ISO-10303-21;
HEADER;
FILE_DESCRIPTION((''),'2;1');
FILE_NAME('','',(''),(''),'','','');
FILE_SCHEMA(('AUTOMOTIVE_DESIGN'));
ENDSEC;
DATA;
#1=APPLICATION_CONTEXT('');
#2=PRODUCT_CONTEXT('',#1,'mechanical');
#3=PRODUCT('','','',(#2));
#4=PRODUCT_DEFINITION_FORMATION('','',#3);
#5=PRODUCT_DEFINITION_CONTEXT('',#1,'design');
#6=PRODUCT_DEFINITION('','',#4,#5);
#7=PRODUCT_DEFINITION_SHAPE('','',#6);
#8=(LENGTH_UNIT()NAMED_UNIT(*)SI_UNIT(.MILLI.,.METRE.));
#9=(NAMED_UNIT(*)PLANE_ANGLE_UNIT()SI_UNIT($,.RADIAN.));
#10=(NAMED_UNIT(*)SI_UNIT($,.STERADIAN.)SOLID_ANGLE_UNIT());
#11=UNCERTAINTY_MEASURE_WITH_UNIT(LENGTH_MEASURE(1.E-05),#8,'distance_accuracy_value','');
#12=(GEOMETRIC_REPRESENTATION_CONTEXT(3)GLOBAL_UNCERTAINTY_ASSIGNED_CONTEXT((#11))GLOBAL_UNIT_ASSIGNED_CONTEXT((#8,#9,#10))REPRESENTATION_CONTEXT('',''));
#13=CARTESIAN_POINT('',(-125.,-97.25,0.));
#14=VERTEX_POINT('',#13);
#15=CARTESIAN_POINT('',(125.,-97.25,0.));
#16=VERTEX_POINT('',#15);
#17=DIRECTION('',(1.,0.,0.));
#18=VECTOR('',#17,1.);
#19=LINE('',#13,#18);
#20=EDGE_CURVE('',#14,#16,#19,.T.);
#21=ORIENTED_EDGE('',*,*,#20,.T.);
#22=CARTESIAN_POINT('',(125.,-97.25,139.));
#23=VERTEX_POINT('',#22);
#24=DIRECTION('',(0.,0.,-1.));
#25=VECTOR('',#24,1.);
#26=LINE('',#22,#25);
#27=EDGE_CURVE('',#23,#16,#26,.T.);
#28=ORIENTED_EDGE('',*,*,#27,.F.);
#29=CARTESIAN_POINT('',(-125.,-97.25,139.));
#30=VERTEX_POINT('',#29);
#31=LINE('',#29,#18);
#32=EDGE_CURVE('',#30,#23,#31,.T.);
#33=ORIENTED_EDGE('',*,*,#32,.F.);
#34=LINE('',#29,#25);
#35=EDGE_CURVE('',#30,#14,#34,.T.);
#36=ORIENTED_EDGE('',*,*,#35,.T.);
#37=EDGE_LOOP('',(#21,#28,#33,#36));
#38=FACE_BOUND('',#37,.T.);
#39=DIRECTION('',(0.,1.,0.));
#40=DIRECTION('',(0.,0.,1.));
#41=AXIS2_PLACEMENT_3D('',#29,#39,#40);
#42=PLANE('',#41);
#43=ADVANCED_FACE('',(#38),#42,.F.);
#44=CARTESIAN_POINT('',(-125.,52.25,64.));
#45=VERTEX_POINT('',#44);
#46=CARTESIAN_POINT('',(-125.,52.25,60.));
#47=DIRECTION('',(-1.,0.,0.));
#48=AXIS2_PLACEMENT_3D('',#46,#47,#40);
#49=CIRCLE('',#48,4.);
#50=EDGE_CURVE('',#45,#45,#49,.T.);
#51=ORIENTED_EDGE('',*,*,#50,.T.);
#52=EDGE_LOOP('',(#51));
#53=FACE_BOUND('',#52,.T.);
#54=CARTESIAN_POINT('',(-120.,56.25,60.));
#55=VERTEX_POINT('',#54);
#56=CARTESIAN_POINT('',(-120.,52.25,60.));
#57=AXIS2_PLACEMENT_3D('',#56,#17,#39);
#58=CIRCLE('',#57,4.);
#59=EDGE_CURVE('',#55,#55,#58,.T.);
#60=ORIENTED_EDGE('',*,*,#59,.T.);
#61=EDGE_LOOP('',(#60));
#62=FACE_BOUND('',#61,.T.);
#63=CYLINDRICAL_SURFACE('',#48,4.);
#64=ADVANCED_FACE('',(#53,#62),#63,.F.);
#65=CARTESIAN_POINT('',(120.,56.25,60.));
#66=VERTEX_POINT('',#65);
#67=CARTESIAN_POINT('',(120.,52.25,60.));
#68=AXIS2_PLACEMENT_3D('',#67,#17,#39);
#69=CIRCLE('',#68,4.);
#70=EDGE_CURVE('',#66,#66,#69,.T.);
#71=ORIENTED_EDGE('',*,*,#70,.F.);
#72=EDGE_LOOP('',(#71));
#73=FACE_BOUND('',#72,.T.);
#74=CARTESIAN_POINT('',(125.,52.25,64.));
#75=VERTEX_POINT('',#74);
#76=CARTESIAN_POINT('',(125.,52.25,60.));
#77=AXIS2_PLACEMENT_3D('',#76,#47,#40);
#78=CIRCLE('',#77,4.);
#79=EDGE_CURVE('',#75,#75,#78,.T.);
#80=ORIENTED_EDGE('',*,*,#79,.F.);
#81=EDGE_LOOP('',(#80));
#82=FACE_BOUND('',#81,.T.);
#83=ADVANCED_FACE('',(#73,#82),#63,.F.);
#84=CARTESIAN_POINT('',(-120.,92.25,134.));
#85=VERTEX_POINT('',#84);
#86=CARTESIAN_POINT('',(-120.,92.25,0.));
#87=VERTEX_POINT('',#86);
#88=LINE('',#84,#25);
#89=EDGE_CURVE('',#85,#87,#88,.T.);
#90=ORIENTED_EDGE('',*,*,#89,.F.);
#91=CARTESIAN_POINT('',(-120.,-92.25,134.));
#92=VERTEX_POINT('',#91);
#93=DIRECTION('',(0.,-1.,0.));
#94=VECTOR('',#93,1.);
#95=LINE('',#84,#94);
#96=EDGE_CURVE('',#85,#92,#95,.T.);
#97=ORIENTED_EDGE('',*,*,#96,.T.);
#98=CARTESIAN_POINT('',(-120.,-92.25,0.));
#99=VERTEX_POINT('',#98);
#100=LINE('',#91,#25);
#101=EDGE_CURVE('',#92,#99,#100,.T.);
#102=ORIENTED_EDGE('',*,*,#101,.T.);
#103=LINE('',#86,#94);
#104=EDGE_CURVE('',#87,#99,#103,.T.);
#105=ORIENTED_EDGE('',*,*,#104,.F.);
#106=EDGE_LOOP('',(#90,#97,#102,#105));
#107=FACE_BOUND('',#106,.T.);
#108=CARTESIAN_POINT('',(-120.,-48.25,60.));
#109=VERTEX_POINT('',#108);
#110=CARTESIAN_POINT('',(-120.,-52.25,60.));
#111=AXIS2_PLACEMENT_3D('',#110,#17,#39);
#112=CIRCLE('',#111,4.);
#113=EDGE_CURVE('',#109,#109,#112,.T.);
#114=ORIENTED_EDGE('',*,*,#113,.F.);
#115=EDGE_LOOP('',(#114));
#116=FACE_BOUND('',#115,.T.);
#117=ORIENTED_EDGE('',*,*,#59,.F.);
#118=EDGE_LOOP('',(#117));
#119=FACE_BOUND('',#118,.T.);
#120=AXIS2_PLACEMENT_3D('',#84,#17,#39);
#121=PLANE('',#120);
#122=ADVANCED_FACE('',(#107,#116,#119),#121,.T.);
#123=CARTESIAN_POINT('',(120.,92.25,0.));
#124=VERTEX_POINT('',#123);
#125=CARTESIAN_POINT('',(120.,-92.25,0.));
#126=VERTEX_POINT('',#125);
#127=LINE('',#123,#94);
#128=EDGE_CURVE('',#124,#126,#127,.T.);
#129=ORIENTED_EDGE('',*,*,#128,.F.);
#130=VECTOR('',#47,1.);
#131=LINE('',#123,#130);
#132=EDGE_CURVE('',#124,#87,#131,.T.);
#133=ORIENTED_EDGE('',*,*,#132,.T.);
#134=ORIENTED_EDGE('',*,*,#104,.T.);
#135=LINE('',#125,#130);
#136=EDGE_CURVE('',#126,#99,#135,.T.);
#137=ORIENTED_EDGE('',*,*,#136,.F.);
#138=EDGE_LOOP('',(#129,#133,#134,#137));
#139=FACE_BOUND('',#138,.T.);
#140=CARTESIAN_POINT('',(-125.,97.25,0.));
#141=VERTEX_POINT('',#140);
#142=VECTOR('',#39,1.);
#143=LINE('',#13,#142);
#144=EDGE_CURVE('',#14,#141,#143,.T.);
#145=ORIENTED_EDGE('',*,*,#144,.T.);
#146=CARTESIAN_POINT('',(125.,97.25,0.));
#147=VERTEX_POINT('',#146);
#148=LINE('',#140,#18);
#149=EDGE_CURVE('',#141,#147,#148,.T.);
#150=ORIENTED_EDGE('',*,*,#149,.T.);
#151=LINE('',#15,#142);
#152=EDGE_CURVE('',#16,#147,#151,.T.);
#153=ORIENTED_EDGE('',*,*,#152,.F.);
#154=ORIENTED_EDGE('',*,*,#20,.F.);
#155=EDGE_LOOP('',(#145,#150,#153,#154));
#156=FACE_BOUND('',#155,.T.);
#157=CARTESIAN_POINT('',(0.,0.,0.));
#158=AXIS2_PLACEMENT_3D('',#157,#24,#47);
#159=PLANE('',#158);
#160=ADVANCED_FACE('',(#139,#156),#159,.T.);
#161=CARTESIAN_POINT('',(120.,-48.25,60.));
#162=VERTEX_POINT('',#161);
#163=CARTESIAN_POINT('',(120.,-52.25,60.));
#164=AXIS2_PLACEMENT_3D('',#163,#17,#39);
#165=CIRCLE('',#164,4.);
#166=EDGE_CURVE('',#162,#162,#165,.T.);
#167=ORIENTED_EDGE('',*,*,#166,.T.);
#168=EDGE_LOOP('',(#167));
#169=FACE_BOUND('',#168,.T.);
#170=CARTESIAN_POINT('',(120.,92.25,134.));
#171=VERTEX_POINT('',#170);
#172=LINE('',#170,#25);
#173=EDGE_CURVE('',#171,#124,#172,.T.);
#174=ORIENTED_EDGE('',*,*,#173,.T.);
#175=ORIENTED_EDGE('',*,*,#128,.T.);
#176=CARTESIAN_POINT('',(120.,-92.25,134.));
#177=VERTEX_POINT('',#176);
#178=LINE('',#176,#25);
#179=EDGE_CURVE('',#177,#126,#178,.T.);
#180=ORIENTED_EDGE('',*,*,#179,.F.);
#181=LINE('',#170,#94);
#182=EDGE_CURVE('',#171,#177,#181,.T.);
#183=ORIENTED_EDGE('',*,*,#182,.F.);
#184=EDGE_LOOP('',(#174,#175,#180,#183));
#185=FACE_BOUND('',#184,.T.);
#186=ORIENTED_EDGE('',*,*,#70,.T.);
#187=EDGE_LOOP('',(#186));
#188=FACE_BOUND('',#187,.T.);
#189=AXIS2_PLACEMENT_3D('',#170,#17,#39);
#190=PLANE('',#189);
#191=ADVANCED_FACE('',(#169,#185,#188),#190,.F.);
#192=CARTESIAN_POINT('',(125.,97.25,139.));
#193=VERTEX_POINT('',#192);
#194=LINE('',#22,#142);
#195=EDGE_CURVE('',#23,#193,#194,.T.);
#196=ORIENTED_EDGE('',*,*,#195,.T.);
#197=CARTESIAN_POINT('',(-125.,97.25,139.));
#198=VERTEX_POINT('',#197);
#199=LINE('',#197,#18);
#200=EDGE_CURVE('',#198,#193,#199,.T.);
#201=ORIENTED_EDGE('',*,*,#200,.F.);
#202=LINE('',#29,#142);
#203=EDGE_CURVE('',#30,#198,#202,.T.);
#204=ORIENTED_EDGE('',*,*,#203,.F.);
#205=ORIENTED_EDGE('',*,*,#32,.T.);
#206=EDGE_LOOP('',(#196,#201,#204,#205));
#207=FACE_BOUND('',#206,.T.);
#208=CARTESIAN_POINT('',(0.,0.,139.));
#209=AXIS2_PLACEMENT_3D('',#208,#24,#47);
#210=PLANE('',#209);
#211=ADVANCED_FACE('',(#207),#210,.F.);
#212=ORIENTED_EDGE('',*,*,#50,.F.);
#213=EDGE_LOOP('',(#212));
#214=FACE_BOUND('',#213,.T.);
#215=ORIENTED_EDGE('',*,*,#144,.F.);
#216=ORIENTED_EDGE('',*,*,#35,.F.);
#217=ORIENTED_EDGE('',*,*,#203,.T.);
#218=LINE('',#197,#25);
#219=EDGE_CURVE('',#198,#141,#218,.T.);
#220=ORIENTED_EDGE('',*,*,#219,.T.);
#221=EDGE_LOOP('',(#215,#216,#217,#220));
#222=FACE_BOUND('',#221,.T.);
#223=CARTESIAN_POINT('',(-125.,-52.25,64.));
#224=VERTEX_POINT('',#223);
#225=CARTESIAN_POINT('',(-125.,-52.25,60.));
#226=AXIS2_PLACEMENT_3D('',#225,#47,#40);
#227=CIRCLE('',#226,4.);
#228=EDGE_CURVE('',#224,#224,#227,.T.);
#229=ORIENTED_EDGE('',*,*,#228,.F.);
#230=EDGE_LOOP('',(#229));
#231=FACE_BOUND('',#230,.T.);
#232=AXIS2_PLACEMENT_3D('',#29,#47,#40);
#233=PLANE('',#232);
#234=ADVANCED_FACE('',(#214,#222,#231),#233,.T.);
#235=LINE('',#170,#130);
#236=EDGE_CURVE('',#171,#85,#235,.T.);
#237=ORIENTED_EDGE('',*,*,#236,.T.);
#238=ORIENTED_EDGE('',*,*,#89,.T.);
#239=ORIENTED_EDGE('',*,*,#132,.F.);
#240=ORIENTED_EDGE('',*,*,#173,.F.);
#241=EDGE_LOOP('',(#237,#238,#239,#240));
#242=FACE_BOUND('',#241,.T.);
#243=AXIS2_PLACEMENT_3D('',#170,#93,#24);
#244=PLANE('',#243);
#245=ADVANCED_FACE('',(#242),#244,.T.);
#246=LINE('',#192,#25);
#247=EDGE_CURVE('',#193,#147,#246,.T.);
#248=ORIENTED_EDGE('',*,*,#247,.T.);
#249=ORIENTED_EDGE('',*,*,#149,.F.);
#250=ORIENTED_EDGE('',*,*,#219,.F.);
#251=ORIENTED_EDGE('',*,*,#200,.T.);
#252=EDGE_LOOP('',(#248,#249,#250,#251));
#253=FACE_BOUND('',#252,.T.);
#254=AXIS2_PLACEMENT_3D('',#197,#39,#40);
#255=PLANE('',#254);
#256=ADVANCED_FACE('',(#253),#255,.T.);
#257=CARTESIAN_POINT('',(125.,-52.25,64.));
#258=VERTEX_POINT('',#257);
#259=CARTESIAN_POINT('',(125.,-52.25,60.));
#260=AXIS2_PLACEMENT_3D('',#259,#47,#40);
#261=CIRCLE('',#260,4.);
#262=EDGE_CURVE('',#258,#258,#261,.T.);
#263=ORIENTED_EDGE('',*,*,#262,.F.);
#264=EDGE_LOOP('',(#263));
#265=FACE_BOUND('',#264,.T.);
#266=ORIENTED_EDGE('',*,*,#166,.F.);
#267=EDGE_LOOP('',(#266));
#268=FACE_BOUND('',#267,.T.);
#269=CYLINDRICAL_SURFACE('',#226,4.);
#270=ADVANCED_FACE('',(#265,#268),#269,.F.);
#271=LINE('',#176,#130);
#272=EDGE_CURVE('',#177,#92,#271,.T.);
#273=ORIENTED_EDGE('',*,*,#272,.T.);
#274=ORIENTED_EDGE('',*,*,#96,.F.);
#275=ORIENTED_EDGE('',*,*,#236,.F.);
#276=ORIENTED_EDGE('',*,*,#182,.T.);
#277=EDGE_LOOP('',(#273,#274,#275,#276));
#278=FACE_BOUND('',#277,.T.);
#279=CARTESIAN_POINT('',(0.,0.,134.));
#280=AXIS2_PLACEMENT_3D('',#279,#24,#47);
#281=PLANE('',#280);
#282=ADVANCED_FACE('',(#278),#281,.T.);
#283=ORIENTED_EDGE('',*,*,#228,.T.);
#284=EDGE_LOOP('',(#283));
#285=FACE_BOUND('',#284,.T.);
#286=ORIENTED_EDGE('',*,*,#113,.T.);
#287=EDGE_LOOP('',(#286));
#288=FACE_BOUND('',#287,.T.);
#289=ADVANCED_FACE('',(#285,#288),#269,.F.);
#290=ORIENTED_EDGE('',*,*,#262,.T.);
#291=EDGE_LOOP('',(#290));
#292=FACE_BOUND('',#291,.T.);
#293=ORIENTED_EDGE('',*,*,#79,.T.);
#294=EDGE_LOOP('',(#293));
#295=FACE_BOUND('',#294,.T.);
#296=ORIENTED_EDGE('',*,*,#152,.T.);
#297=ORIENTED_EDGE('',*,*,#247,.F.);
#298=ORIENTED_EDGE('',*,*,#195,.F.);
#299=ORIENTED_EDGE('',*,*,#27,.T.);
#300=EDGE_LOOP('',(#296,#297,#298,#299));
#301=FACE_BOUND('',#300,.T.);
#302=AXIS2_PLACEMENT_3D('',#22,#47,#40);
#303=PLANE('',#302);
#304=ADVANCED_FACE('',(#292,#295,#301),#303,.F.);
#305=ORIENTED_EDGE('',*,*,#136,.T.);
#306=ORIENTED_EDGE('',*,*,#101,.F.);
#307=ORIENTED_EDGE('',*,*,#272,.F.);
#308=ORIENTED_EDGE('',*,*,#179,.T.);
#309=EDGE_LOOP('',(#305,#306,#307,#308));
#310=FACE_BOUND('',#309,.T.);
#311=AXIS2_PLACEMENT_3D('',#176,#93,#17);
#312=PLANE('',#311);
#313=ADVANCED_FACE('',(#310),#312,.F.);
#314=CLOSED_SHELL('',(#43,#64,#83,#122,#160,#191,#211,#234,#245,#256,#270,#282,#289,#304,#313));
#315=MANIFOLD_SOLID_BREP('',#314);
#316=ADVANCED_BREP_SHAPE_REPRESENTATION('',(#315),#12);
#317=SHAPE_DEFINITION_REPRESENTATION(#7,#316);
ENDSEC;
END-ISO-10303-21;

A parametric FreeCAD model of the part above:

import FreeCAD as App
import Part
import Sketcher
Q = App.Units.Quantity

doc = App.newDocument("Part")
body = doc.addObject("PartDesign::Body", "Body")

# Sketch on XY plane
sketch1 = doc.addObject("Sketcher::SketchObject", "Sketch")
body.addObject(sketch1)
sketch1.AttachmentSupport = (doc.XY_Plane, [""])
sketch1.MapMode = "FlatFace"
sketch1.addGeometry([
    Part.LineSegment(App.Vector(-125, 97, 0), App.Vector(-125, -97, 0)),
    Part.LineSegment(App.Vector(-125, -97, 0), App.Vector(125, -97, 0)),
    Part.LineSegment(App.Vector(125, -97, 0), App.Vector(125, 97, 0)),
    Part.LineSegment(App.Vector(125, 97, 0), App.Vector(-125, 97, 0)),
], False)
sketch1.addConstraint([
    Sketcher.Constraint("Coincident", 0, 2, 1, 1),
    Sketcher.Constraint("Coincident", 1, 2, 2, 1),
    Sketcher.Constraint("Coincident", 2, 2, 3, 1),
    Sketcher.Constraint("Coincident", 3, 2, 0, 1),
    Sketcher.Constraint("Vertical", 0),
    Sketcher.Constraint("Horizontal", 1),
    Sketcher.Constraint("Vertical", 2),
    Sketcher.Constraint("Horizontal", 3),
    Sketcher.Constraint("Symmetric", 0, 2, 2, 2, -1, 1),
    Sketcher.Constraint("DistanceX", 1, 1, 1, 2, Q("250 mm")),
    Sketcher.Constraint("DistanceY", 0, 2, 0, 1, Q("194.5 mm")),
])
pad1 = doc.addObject("PartDesign::Pad", "Pad")
body.addObject(pad1)
pad1.Profile = sketch1
pad1.Length = 139

# Sketch on XY plane
sketch2 = doc.addObject("Sketcher::SketchObject", "Sketch001")
body.addObject(sketch2)
sketch2.AttachmentSupport = (doc.XY_Plane, [""])
sketch2.MapMode = "FlatFace"
sketch2.addGeometry([
    Part.LineSegment(App.Vector(120, 92, 0), App.Vector(120, -92, 0)),
    Part.LineSegment(App.Vector(120, -92, 0), App.Vector(-120, -92, 0)),
    Part.LineSegment(App.Vector(-120, -92, 0), App.Vector(-120, 92, 0)),
    Part.LineSegment(App.Vector(-120, 92, 0), App.Vector(120, 92, 0)),
], False)
sketch2.addConstraint([
    Sketcher.Constraint("Coincident", 0, 2, 1, 1),
    Sketcher.Constraint("Coincident", 1, 2, 2, 1),
    Sketcher.Constraint("Coincident", 2, 2, 3, 1),
    Sketcher.Constraint("Coincident", 3, 2, 0, 1),
    Sketcher.Constraint("Vertical", 0),
    Sketcher.Constraint("Horizontal", 1),
    Sketcher.Constraint("Vertical", 2),
    Sketcher.Constraint("Horizontal", 3),
    Sketcher.Constraint("Symmetric", 0, 2, 2, 2, -1, 1),
    Sketcher.Constraint("DistanceX", 1, 2, 1, 1, Q("240 mm")),
    Sketcher.Constraint("DistanceY", 0, 2, 0, 1, Q("184.5 mm")),
])
pocket1 = doc.addObject("PartDesign::Pocket", "Pocket")
body.addObject(pocket1)
pocket1.Profile = sketch2
pocket1.Length = 134
pocket1.Reversed = True

# Sketch on YZ plane
sketch3 = doc.addObject("Sketcher::SketchObject", "Sketch002")
body.addObject(sketch3)
sketch3.AttachmentSupport = (doc.YZ_Plane, [""])
sketch3.MapMode = "FlatFace"
sketch3.AttachmentOffset = App.Placement(App.Vector(0, 0, -125), App.Rotation())
sketch3.addGeometry(Part.Circle(App.Vector(-52.2, 60, 0), App.Vector(0, 0, 1), 4), False)
sketch3.addConstraint([
    Sketcher.Constraint("Diameter", 0, Q("8 mm")),
    Sketcher.Constraint("DistanceY", -1, 1, 0, 3, Q("60 mm")),
    Sketcher.Constraint("DistanceX", 0, 3, -1, 1, Q("52.25 mm")),
])
doc.recompute()
hole = doc.addObject("PartDesign::Hole", "Hole")
body.addObject(hole)
hole.Profile = sketch3
hole.ThreadType = "None"
hole.Diameter = 8
hole.DepthType = "ThroughAll"
hole.Reversed = True
doc.recompute()

mirrored = doc.addObject("PartDesign::Mirrored", "Mirrored")
body.addObject(mirrored)
mirrored.Originals = [hole]
mirrored.MirrorPlane = (doc.XZ_Plane, [""])
body.Tip = mirrored

doc.recompute()
